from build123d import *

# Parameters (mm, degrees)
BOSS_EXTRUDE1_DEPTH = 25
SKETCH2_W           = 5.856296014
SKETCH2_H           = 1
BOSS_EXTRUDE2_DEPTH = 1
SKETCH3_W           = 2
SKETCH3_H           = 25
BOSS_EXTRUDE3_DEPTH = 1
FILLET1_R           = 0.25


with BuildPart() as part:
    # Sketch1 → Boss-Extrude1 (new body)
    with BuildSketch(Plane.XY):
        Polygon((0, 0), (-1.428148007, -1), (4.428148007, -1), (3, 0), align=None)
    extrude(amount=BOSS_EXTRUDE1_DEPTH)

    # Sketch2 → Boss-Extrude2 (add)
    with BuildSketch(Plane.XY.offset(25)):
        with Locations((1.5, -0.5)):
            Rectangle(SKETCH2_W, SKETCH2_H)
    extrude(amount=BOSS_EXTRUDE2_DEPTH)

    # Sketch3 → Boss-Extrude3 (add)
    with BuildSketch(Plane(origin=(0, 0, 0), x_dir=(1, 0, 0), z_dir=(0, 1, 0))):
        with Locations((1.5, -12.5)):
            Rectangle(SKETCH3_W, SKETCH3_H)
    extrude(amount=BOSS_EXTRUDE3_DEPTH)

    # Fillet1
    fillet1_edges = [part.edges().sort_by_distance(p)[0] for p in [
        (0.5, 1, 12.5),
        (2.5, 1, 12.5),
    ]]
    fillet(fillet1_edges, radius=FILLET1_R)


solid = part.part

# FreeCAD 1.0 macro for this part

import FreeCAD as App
import Part
import Sketcher
from FreeCAD import Vector
Q = App.Units.Quantity


def edges_at(feature, points):
    """Names of the edges that pass closest to the given points."""
    edges = feature.Shape.Edges
    near = lambda p: min(range(len(edges)), key=lambda i: edges[i].distToShape(Part.Vertex(*p))[0])
    return sorted({f"Edge{near(p) + 1}" for p in points})


def add_polygon(sketch, points):
    """Adds a closed chain of lines whose ends are joined by coincident constraints."""
    first, n = sketch.GeometryCount, len(points)
    for a, b in zip(points, points[1:] + points[:1]):
        sketch.addGeometry(Part.LineSegment(App.Vector(*a, 0), App.Vector(*b, 0)), False)
    for i in range(n):
        sketch.addConstraint(Sketcher.Constraint("Coincident", first + i, 2, first + (i + 1) % n, 1))

doc = App.newDocument("Part")
body = doc.addObject("PartDesign::Body", "Body")

sketch1 = body.newObject("Sketcher::SketchObject", "Sketch")
sketch1.AttachmentSupport = (doc.getObject("XY_Plane"), [""])
sketch1.MapMode = "FlatFace"
add_polygon(sketch1, [(0, 0), (-1.428148, -1), (4.428148, -1), (3, 0)])
sketch1.addConstraint([
    Sketcher.Constraint("Horizontal", 1),
    Sketcher.Constraint("Horizontal", 3),
    Sketcher.Constraint("Coincident", 3, 2, -1, 1),
    Sketcher.Constraint("Equal", 0, 2),
    Sketcher.Constraint("DistanceX", 3, 2, 3, 1, Q("3 mm")),
    Sketcher.Constraint("Angle", 0, Q("-145 deg")),
    Sketcher.Constraint("DistanceY", 0, 2, -1, 1, Q("1 mm")),
])
pad1 = body.newObject("PartDesign::Pad", "Pad")
pad1.Profile = sketch1
pad1.Length = 25

sketch2 = body.newObject("Sketcher::SketchObject", "Sketch001")
sketch2.AttachmentSupport = (doc.getObject("XY_Plane"), [""])
sketch2.MapMode = "FlatFace"
sketch2.AttachmentOffset = App.Placement(Vector(0, 0, 25), App.Rotation())
add_polygon(sketch2, [(-1.428148, 0), (-1.428148, -1), (4.428148, -1), (4.428148, 0)])
sketch2.addConstraint([
    Sketcher.Constraint("Vertical", 0),
    Sketcher.Constraint("Horizontal", 1),
    Sketcher.Constraint("Vertical", 2),
    Sketcher.Constraint("Horizontal", 3),
    Sketcher.Constraint("PointOnObject", 2, 2, -1),
    Sketcher.Constraint("DistanceY", 0, 2, 0, 1, Q("1 mm")),
    Sketcher.Constraint("DistanceX", 1, 1, 1, 2, Q("5.856296 mm")),
    Sketcher.Constraint("DistanceX", 0, 2, -1, 1, Q("1.428148 mm")),
])
pad2 = body.newObject("PartDesign::Pad", "Pad001")
pad2.Profile = sketch2
pad2.Length = 1

sketch3 = body.newObject("Sketcher::SketchObject", "Sketch002")
sketch3.AttachmentSupport = (doc.getObject("XZ_Plane"), [""])
sketch3.MapMode = "FlatFace"
add_polygon(sketch3, [(0.5, 0), (0.5, 25), (2.5, 25), (2.5, 0)])
sketch3.addConstraint([
    Sketcher.Constraint("Vertical", 0),
    Sketcher.Constraint("Horizontal", 1),
    Sketcher.Constraint("Vertical", 2),
    Sketcher.Constraint("Horizontal", 3),
    Sketcher.Constraint("PointOnObject", 2, 2, -1),
    Sketcher.Constraint("DistanceX", 1, 1, 1, 2, Q("2 mm")),
    Sketcher.Constraint("DistanceY", 0, 1, 0, 2, Q("25 mm")),
    Sketcher.Constraint("DistanceX", -1, 1, 0, 2, Q("0.5 mm")),
])
pad3 = body.newObject("PartDesign::Pad", "Pad002")
pad3.Profile = sketch3
pad3.Length = 1
pad3.Reversed = True
doc.recompute()

fillet = body.newObject("PartDesign::Fillet", "Fillet")
fillet.Base = (pad3, edges_at(pad3, [(0.5, 1, 12.5), (2.5, 1, 12.5)]))
fillet.Radius = 0.25

doc.recompute()
